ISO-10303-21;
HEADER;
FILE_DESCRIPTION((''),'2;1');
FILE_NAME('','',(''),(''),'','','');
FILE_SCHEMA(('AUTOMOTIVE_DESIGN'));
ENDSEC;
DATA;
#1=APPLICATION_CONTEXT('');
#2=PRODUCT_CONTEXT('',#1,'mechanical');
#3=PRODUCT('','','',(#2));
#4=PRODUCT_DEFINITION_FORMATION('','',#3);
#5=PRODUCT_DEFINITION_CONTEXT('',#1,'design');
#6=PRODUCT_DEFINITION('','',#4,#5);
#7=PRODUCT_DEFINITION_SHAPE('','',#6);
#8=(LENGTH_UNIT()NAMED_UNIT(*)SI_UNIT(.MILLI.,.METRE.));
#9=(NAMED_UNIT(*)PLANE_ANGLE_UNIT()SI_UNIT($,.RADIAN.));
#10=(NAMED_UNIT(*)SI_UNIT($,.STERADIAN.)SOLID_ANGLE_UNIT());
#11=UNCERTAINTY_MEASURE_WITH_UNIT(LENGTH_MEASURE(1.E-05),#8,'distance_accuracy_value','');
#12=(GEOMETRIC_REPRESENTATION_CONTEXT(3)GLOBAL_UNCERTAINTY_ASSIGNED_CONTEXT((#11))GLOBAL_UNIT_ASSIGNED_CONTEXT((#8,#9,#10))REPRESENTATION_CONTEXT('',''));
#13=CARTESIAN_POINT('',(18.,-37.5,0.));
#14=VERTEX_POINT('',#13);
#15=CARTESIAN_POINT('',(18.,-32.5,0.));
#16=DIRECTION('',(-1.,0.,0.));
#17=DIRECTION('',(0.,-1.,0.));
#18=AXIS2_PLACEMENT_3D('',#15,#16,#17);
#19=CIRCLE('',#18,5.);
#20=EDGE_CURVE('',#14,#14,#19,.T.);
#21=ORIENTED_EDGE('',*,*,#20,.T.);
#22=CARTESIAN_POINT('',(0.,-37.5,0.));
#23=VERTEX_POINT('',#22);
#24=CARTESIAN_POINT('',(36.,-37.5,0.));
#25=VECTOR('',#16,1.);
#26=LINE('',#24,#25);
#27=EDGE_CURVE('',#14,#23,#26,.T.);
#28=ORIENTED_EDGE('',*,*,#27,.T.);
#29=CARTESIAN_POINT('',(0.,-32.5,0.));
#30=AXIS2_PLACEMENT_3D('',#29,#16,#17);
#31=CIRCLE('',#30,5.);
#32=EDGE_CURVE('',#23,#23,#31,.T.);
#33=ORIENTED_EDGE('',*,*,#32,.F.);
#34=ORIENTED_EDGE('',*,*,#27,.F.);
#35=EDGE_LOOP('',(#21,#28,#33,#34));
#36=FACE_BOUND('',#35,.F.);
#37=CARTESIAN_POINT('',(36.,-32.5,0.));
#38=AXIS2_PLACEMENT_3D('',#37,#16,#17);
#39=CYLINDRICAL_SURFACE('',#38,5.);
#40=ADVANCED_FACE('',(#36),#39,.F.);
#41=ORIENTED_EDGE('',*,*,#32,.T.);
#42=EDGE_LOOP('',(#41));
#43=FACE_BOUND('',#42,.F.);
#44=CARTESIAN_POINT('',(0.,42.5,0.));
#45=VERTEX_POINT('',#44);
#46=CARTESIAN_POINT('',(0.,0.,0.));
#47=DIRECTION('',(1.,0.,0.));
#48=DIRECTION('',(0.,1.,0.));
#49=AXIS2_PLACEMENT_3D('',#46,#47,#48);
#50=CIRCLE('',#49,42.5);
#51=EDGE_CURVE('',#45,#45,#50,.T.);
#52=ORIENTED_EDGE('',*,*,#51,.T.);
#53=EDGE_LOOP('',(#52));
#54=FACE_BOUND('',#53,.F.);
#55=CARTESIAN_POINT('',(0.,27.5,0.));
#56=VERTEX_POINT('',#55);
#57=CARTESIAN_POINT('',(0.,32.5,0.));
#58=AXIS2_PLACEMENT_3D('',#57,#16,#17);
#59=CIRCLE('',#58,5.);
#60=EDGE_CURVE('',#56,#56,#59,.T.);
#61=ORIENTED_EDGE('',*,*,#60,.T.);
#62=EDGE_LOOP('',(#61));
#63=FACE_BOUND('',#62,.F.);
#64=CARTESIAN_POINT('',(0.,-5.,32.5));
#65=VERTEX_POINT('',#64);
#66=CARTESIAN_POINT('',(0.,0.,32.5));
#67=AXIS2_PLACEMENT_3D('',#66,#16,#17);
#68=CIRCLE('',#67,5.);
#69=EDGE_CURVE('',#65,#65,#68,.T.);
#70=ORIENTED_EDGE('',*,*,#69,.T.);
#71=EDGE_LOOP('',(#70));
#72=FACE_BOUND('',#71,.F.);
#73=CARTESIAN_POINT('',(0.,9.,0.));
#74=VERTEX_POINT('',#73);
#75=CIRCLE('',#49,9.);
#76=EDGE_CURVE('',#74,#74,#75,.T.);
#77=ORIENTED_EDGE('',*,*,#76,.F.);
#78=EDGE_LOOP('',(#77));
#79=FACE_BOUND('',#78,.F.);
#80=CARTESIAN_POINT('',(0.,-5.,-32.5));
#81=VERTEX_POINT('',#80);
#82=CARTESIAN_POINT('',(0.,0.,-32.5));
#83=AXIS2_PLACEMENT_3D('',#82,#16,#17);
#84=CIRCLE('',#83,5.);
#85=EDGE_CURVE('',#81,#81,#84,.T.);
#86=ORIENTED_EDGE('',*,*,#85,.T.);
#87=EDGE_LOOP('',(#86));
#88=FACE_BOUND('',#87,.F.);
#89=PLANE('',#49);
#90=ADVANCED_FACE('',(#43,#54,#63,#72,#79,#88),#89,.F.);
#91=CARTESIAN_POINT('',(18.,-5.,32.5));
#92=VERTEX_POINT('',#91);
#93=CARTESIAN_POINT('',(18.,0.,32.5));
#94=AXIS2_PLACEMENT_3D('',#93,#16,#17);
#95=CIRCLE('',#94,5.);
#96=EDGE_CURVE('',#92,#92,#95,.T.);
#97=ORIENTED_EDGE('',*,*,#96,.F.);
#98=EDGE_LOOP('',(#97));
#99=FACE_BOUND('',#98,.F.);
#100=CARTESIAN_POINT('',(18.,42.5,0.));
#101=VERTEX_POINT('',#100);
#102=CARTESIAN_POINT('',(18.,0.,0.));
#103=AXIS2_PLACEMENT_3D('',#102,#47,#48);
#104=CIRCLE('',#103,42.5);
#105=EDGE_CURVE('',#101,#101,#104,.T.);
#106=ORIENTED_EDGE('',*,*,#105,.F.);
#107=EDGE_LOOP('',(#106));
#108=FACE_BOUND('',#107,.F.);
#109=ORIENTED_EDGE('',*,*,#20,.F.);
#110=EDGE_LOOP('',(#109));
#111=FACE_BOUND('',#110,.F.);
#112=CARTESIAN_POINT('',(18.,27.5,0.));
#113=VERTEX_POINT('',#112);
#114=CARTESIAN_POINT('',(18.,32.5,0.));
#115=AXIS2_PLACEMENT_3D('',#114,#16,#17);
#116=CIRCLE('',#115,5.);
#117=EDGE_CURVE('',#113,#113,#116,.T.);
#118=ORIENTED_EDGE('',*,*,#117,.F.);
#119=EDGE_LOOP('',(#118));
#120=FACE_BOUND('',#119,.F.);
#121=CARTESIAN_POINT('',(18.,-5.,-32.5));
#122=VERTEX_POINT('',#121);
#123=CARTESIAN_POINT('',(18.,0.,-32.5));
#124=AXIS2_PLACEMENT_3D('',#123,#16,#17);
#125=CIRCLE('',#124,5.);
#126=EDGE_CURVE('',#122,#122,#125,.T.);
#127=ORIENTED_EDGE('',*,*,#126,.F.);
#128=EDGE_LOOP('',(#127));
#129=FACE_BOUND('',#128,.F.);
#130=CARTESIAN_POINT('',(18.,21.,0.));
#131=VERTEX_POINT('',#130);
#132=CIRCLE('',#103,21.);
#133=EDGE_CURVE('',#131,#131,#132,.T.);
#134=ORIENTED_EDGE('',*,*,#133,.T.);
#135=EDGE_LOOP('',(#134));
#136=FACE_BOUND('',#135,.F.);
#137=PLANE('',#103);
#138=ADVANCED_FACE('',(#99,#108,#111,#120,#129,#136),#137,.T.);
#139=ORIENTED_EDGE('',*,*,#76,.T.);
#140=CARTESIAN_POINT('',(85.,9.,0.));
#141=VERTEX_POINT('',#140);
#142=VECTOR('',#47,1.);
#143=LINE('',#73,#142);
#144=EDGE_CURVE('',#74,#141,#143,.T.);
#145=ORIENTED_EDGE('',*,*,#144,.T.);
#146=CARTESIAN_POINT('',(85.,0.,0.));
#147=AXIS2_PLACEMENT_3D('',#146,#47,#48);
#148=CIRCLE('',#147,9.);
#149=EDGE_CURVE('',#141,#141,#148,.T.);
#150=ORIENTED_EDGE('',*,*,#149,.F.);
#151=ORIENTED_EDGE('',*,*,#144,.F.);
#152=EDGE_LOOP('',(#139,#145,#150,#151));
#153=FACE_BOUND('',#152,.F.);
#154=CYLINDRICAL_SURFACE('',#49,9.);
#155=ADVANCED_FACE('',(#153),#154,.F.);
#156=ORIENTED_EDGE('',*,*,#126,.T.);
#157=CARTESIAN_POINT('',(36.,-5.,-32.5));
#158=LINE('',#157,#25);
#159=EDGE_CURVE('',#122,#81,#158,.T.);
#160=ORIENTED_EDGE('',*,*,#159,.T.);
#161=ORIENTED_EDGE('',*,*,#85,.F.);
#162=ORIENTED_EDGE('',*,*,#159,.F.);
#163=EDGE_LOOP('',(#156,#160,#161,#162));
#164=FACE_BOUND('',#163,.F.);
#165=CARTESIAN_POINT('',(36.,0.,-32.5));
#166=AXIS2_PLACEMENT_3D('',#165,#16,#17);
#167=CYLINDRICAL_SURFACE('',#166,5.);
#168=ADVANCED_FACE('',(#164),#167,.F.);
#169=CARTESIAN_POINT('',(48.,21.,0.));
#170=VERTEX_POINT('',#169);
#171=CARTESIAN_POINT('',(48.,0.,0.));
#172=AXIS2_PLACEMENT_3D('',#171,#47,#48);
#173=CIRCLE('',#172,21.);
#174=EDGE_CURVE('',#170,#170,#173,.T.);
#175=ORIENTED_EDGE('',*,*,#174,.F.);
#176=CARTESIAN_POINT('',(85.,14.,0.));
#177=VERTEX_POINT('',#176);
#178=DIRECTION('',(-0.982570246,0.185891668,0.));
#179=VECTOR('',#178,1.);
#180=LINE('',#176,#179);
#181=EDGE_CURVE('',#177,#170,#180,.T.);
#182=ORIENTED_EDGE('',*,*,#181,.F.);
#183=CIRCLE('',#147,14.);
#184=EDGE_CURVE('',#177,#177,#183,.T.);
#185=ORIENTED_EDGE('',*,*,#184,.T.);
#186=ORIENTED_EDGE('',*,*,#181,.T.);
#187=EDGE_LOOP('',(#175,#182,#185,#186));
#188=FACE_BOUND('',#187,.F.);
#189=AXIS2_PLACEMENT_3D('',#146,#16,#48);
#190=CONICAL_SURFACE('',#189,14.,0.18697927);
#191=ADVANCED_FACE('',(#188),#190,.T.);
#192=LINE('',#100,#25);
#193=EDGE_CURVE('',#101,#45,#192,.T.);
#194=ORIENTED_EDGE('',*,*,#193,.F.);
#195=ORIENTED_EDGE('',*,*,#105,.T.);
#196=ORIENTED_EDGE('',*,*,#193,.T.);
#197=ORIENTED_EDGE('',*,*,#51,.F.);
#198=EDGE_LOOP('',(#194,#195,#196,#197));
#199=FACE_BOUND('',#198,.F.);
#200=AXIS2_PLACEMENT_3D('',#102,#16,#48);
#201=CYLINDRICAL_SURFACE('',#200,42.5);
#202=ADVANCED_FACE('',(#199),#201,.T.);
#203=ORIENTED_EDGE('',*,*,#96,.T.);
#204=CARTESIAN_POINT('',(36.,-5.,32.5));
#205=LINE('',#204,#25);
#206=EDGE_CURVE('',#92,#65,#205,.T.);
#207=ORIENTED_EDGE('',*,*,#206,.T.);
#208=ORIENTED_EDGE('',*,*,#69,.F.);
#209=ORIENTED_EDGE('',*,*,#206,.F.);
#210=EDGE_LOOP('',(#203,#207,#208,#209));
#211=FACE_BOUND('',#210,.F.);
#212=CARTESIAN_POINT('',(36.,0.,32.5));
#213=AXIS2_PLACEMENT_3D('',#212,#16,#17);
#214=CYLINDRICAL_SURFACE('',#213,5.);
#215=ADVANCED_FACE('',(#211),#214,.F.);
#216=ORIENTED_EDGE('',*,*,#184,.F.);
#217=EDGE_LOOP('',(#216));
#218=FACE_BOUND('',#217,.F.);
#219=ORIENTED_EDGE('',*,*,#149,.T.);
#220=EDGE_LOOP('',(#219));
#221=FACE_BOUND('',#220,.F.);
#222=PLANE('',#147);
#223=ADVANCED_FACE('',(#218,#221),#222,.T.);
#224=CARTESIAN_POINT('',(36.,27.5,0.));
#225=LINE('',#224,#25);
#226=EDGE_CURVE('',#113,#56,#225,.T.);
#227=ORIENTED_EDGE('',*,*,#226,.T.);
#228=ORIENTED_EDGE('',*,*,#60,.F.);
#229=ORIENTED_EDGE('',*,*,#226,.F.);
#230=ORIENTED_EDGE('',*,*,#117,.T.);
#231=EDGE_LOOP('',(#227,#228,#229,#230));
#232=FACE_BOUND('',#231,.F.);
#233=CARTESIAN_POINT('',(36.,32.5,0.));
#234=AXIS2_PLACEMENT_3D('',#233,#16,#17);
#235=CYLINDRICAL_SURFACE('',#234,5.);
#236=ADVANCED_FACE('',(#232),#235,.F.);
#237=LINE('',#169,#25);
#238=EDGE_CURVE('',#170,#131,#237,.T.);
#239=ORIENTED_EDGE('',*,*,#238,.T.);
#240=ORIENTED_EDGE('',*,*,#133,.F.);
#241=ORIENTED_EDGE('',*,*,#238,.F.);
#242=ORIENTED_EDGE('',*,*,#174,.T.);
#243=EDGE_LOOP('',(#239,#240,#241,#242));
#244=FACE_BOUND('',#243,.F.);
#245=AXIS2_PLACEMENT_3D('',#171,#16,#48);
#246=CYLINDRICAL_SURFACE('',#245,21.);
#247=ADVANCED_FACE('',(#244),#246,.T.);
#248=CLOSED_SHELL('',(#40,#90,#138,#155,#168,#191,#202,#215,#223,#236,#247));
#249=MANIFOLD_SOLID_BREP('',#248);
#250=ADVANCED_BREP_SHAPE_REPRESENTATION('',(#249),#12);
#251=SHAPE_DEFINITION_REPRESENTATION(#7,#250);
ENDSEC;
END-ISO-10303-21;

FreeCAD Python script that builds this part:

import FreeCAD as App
import Part
import Sketcher

doc = App.newDocument("Part")
body = doc.addObject("PartDesign::Body", "Body")

sketch1 = doc.addObject("Sketcher::SketchObject", "Sketch")
body.addObject(sketch1)
sketch1.AttachmentSupport = (doc.XY_Plane, [""])
sketch1.MapMode = "FlatFace"
sketch1.addGeometry([
    Part.LineSegment(App.Vector(0, 42.5, 0), App.Vector(0, 9, 0)),
    Part.LineSegment(App.Vector(0, 9, 0), App.Vector(85, 9, 0)),
    Part.LineSegment(App.Vector(85, 9, 0), App.Vector(85, 14, 0)),
    Part.LineSegment(App.Vector(85, 14, 0), App.Vector(48, 21, 0)),
    Part.LineSegment(App.Vector(48, 21, 0), App.Vector(18, 21, 0)),
    Part.LineSegment(App.Vector(18, 21, 0), App.Vector(18, 42.5, 0)),
    Part.LineSegment(App.Vector(18, 42.5, 0), App.Vector(0, 42.5, 0)),
], False)
sketch1.addConstraint([
    Sketcher.Constraint("Coincident", 0, 2, 1, 1),
    Sketcher.Constraint("Coincident", 1, 2, 2, 1),
    Sketcher.Constraint("Coincident", 2, 2, 3, 1),
    Sketcher.Constraint("Coincident", 3, 2, 4, 1),
    Sketcher.Constraint("Coincident", 4, 2, 5, 1),
    Sketcher.Constraint("Coincident", 5, 2, 6, 1),
    Sketcher.Constraint("Coincident", 6, 2, 0, 1),
    Sketcher.Constraint("Vertical", 0),
    Sketcher.Constraint("Horizontal", 1),
    Sketcher.Constraint("Vertical", 2),
    Sketcher.Constraint("Horizontal", 4),
    Sketcher.Constraint("Vertical", 5),
    Sketcher.Constraint("Horizontal", 6),
    Sketcher.Constraint("PointOnObject", 0, 2, -2),
    Sketcher.Constraint("DistanceX", 1, 1, 1, 2, 85.0),
    Sketcher.Constraint("DistanceX", 4, 2, 4, 1, 30.0),
    Sketcher.Constraint("DistanceX", 6, 2, 6, 1, 18.0),
    Sketcher.Constraint("DistanceY", 2, 1, 2, 2, 5.0),
    Sketcher.Constraint("DistanceY", 0, 2, 0, 1, 33.5),
    Sketcher.Constraint("DistanceY", 5, 1, 5, 2, 21.5),
    Sketcher.Constraint("DistanceY", -1, 1, 0, 2, 9.0),
])
revolution = doc.addObject("PartDesign::Revolution", "Revolution")
body.addObject(revolution)
revolution.Profile = sketch1
revolution.ReferenceAxis = (sketch1, ["H_Axis"])
revolution.Angle = 360

sketch2 = doc.addObject("Sketcher::SketchObject", "Sketch001")
body.addObject(sketch2)
sketch2.AttachmentSupport = (doc.YZ_Plane, [""])
sketch2.MapMode = "FlatFace"
sketch2.AttachmentOffset = App.Placement(App.Vector(0, 0, 18), App.Rotation())
sketch2.addGeometry([
    Part.Circle(App.Vector(0, 32.5, 0), App.Vector(0, 0, 1), 5),
    Part.Circle(App.Vector(-32.5, 0, 0), App.Vector(0, 0, 1), 5),
    Part.Circle(App.Vector(0, -32.5, 0), App.Vector(0, 0, 1), 5),
    Part.Circle(App.Vector(32.5, 0, 0), App.Vector(0, 0, 1), 5),
], False)
sketch2.addConstraint([
    Sketcher.Constraint("Equal", 0, 1),
    Sketcher.Constraint("Equal", 1, 2),
    Sketcher.Constraint("Equal", 2, 3),
    Sketcher.Constraint("Symmetric", 0, 3, 2, 3, -1, 1),
    Sketcher.Constraint("Symmetric", 1, 3, 3, 3, -1, 1),
    Sketcher.Constraint("PointOnObject", 0, 3, -2),
    Sketcher.Constraint("PointOnObject", 1, 3, -1),
    Sketcher.Constraint("Diameter", 0, 10.0),
    Sketcher.Constraint("DistanceY", 2, 3, 0, 3, 65.0),
    Sketcher.Constraint("DistanceX", 1, 3, 3, 3, 65.0),
])
doc.recompute()
hole = doc.addObject("PartDesign::Hole", "Hole")
body.addObject(hole)
hole.Profile = sketch2
hole.ThreadType = "None"
hole.Diameter = 10
hole.DepthType = "Dimension"
hole.Depth = 18
hole.DrillPoint = "Flat"

doc.recompute()
